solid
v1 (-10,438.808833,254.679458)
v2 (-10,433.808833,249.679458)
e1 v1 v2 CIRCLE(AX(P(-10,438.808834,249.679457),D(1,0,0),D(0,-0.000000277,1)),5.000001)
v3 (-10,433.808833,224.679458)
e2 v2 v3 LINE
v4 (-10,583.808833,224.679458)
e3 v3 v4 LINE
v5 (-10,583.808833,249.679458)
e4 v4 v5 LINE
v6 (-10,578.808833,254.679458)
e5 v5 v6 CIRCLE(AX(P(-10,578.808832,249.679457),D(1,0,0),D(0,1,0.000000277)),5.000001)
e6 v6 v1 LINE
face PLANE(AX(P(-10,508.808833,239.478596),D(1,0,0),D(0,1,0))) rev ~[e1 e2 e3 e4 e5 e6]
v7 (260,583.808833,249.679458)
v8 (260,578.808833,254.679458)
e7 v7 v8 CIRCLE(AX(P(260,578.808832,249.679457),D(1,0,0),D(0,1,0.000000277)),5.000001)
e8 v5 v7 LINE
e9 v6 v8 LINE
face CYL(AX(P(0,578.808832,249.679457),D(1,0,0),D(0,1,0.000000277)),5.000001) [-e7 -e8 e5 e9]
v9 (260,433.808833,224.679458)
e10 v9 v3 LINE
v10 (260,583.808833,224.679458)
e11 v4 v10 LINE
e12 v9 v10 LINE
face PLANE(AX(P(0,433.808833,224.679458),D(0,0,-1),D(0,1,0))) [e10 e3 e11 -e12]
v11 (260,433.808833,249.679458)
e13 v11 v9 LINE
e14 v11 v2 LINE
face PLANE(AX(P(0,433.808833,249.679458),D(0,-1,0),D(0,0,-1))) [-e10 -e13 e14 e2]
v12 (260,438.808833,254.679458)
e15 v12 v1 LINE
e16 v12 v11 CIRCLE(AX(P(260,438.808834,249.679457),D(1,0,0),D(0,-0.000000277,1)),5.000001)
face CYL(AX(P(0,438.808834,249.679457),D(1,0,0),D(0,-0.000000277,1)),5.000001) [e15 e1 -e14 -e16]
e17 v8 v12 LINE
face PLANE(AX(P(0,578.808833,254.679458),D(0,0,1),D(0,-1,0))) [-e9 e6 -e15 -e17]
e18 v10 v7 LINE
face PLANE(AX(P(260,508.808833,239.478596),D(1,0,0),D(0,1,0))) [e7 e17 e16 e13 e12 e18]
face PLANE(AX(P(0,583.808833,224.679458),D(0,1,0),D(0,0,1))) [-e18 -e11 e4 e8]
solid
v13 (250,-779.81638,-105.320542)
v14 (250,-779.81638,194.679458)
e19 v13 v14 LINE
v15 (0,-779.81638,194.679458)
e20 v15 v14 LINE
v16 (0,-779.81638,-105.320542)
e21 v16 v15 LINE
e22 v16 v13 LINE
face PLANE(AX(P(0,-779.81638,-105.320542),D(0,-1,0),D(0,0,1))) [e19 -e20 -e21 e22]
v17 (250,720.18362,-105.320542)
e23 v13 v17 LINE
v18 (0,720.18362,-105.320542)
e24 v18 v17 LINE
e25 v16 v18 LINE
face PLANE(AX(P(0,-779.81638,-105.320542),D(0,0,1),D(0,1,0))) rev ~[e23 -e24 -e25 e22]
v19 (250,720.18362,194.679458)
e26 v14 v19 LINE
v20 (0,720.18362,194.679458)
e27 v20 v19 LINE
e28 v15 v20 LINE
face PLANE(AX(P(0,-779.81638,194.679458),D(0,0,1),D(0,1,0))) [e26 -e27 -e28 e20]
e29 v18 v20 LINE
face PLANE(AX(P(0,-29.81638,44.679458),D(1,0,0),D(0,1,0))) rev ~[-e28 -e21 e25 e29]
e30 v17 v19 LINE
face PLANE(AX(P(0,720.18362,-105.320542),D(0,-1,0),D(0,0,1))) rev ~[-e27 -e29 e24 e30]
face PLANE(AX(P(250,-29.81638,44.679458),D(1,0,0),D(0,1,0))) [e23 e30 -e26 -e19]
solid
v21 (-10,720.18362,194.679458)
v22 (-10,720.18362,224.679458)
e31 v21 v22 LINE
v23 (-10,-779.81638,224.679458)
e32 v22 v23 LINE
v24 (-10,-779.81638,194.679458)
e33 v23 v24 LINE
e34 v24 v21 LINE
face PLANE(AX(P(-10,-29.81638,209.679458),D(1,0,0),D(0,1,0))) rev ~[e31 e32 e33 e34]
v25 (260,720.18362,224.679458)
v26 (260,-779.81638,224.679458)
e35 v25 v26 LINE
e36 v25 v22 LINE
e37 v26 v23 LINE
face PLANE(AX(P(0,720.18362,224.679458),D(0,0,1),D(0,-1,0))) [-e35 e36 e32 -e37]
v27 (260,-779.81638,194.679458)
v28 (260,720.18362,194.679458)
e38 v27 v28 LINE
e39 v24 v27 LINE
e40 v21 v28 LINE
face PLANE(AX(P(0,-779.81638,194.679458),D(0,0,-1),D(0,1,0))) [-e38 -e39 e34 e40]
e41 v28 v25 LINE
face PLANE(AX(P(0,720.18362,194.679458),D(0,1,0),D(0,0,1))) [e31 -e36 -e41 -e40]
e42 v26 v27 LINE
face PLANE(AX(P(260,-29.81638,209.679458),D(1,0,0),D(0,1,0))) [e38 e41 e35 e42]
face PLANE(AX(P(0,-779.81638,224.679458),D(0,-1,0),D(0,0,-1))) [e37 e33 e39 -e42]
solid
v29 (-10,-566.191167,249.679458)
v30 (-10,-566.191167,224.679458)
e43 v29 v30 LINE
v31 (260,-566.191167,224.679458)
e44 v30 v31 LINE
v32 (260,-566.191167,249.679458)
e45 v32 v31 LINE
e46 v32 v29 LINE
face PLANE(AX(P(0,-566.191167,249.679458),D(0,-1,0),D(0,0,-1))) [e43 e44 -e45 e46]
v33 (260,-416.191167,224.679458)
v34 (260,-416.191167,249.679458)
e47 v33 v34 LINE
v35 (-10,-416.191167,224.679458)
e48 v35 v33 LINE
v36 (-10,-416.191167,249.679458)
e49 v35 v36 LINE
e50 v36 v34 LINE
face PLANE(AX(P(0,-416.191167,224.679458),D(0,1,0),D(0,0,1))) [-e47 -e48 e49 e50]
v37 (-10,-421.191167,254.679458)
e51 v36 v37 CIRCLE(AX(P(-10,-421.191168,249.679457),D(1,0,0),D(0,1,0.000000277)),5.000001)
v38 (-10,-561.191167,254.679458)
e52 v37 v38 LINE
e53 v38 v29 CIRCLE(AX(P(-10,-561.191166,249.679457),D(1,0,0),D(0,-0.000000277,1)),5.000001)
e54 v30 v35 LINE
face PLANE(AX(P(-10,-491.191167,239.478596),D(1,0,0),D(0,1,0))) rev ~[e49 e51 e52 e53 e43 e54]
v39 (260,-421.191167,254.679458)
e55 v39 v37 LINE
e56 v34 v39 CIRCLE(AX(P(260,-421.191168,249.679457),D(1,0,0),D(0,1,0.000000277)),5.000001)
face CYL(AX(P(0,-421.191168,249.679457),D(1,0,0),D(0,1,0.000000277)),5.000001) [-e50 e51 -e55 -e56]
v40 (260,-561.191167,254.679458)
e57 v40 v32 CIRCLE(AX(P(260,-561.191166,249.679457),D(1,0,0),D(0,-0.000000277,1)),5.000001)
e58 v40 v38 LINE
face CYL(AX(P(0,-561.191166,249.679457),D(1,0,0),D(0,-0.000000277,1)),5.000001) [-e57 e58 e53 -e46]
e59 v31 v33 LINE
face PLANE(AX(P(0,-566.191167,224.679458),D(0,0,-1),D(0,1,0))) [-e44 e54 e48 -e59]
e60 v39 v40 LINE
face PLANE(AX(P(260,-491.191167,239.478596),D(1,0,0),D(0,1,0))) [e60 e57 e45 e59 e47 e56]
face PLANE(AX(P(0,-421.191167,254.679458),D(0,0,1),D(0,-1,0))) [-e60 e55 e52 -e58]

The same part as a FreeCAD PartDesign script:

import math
import FreeCAD as App
import Part
import Sketcher
from FreeCAD import Vector

doc = App.newDocument("Part")
body = doc.addObject("PartDesign::Body", "Body")

# Sketch on YZ plane
sketch1 = body.newObject("Sketcher::SketchObject", "Sketch")
sketch1.AttachmentSupport = (doc.getObject("YZ_Plane"), [""])
sketch1.MapMode = "FlatFace"
sketch1.addGeometry([
    Part.LineSegment(Vector(-780, 195, 0), Vector(-780, -105, 0)),
    Part.LineSegment(Vector(-780, -105, 0), Vector(720, -105, 0)),
    Part.LineSegment(Vector(720, -105, 0), Vector(720, 195, 0)),
    Part.LineSegment(Vector(720, 195, 0), Vector(-780, 195, 0)),
], False)
sketch1.addConstraint([
    Sketcher.Constraint("Coincident", 0, 2, 1, 1),
    Sketcher.Constraint("Coincident", 1, 2, 2, 1),
    Sketcher.Constraint("Coincident", 2, 2, 3, 1),
    Sketcher.Constraint("Coincident", 3, 2, 0, 1),
    Sketcher.Constraint("Vertical", 0),
    Sketcher.Constraint("Horizontal", 1),
    Sketcher.Constraint("Vertical", 2),
    Sketcher.Constraint("Horizontal", 3),
    Sketcher.Constraint("DistanceX", 1, 1, 1, 2, 1500.0),
    Sketcher.Constraint("DistanceY", 0, 2, 0, 1, 300.0),
    Sketcher.Constraint("DistanceX", 0, 2, -1, 1, 779.81638),
    Sketcher.Constraint("DistanceY", -1, 1, 2, 2, 194.679458),
])
pad1 = body.newObject("PartDesign::Pad", "Pad")
pad1.Profile = sketch1
pad1.Length = 250
body2 = doc.addObject("PartDesign::Body", "Body001")

# Sketch on YZ plane
sketch2 = body2.newObject("Sketcher::SketchObject", "Sketch001")
sketch2.AttachmentSupport = (doc.getObject("YZ_Plane001"), [""])
sketch2.MapMode = "FlatFace"
sketch2.addGeometry([
    Part.LineSegment(Vector(-780, 225, 0), Vector(-780, 195, 0)),
    Part.LineSegment(Vector(-780, 195, 0), Vector(720, 195, 0)),
    Part.LineSegment(Vector(720, 195, 0), Vector(720, 225, 0)),
    Part.LineSegment(Vector(720, 225, 0), Vector(-780, 225, 0)),
], False)
sketch2.addConstraint([
    Sketcher.Constraint("Coincident", 0, 2, 1, 1),
    Sketcher.Constraint("Coincident", 1, 2, 2, 1),
    Sketcher.Constraint("Coincident", 2, 2, 3, 1),
    Sketcher.Constraint("Coincident", 3, 2, 0, 1),
    Sketcher.Constraint("Vertical", 0),
    Sketcher.Constraint("Horizontal", 1),
    Sketcher.Constraint("Vertical", 2),
    Sketcher.Constraint("Horizontal", 3),
    Sketcher.Constraint("DistanceX", 1, 1, 1, 2, 1500.0),
    Sketcher.Constraint("DistanceY", 0, 2, 0, 1, 30.0),
    Sketcher.Constraint("DistanceX", 0, 2, -1, 1, 779.81638),
    Sketcher.Constraint("DistanceY", -1, 1, 0, 2, 194.679458),
])
pad2 = body2.newObject("PartDesign::Pad", "Pad001")
pad2.Profile = sketch2
pad2.Type = "TwoLengths"
pad2.Length = 260
pad2.Length2 = 10
body3 = doc.addObject("PartDesign::Body", "Body002")
body3.AllowCompound = True

# Sketch on YZ plane
sketch3 = body3.newObject("Sketcher::SketchObject", "Sketch002")
sketch3.AttachmentSupport = (doc.getObject("YZ_Plane002"), [""])
sketch3.MapMode = "FlatFace"
sketch3.addGeometry([
    Part.LineSegment(Vector(-566, 250, 0), Vector(-566, 225, 0)),  # 0
    Part.LineSegment(Vector(-566, 225, 0), Vector(-416, 225, 0)),  # 1
    Part.LineSegment(Vector(-416, 225, 0), Vector(-416, 250, 0)),  # 2
    Part.ArcOfCircle(Part.Circle(Vector(-421, 250, 0), Vector(0, 0, 1), 5), math.radians(0), math.radians(90)),  # 3
    Part.LineSegment(Vector(-421, 255, 0), Vector(-561, 255, 0)),  # 4
    Part.ArcOfCircle(Part.Circle(Vector(-561, 250, 0), Vector(0, 0, 1), 5), math.radians(90), math.radians(180)),  # 5
    Part.LineSegment(Vector(434, 225, 0), Vector(584, 225, 0)),  # 6
    Part.LineSegment(Vector(584, 225, 0), Vector(584, 250, 0)),  # 7
    Part.ArcOfCircle(Part.Circle(Vector(579, 250, 0), Vector(0, 0, 1), 5), math.radians(0), math.radians(90)),  # 8
    Part.LineSegment(Vector(579, 255, 0), Vector(439, 255, 0)),  # 9
    Part.ArcOfCircle(Part.Circle(Vector(439, 250, 0), Vector(0, 0, 1), 5), math.radians(90), math.radians(180)),  # 10
    Part.LineSegment(Vector(434, 250, 0), Vector(434, 225, 0)),  # 11
], False)
sketch3.addConstraint([
    Sketcher.Constraint("Coincident", 0, 2, 1, 1),
    Sketcher.Constraint("Coincident", 1, 2, 2, 1),
    Sketcher.Constraint("Tangent", 2, 2, 3, 1),
    Sketcher.Constraint("Tangent", 3, 2, 4, 1),
    Sketcher.Constraint("Tangent", 4, 2, 5, 1),
    Sketcher.Constraint("Tangent", 5, 2, 0, 1),
    Sketcher.Constraint("Coincident", 6, 2, 7, 1),
    Sketcher.Constraint("Tangent", 7, 2, 8, 1),
    Sketcher.Constraint("Tangent", 8, 2, 9, 1),
    Sketcher.Constraint("Tangent", 9, 2, 10, 1),
    Sketcher.Constraint("Tangent", 10, 2, 11, 1),
    Sketcher.Constraint("Coincident", 11, 2, 6, 1),
    Sketcher.Constraint("Vertical", 0),
    Sketcher.Constraint("Horizontal", 1),
    Sketcher.Constraint("Vertical", 2),
    Sketcher.Constraint("Horizontal", 4),
    Sketcher.Constraint("Horizontal", 6),
    Sketcher.Constraint("Vertical", 7),
    Sketcher.Constraint("Horizontal", 9),
    Sketcher.Constraint("Vertical", 11),
    Sketcher.Constraint("Equal", 3, 5),
    Sketcher.Constraint("Equal", 5, 8),
    Sketcher.Constraint("Equal", 8, 10),
    Sketcher.Constraint("Horizontal", 5, 3, 8, 3),
    Sketcher.Constraint("Horizontal", 1, 2, 6, 2),
    Sketcher.Constraint("Equal", 1, 6),
    Sketcher.Constraint("Radius", 3, 5.000001),
    Sketcher.Constraint("DistanceX", 1, 1, 1, 2, 150.0),
    Sketcher.Constraint("DistanceY", 0, 2, 0, 1, 25.0),
    Sketcher.Constraint("DistanceX", 3, 3, 8, 3, 1000.0),
    Sketcher.Constraint("DistanceX", 3, 3, -1, 1, 421.191168),
    Sketcher.Constraint("DistanceY", -1, 1, 0, 2, 224.679458),
])
pad3 = body3.newObject("PartDesign::Pad", "Pad002")
pad3.Profile = sketch3
pad3.Type = "TwoLengths"
pad3.Length = 260
pad3.Length2 = 10

doc.recompute()
